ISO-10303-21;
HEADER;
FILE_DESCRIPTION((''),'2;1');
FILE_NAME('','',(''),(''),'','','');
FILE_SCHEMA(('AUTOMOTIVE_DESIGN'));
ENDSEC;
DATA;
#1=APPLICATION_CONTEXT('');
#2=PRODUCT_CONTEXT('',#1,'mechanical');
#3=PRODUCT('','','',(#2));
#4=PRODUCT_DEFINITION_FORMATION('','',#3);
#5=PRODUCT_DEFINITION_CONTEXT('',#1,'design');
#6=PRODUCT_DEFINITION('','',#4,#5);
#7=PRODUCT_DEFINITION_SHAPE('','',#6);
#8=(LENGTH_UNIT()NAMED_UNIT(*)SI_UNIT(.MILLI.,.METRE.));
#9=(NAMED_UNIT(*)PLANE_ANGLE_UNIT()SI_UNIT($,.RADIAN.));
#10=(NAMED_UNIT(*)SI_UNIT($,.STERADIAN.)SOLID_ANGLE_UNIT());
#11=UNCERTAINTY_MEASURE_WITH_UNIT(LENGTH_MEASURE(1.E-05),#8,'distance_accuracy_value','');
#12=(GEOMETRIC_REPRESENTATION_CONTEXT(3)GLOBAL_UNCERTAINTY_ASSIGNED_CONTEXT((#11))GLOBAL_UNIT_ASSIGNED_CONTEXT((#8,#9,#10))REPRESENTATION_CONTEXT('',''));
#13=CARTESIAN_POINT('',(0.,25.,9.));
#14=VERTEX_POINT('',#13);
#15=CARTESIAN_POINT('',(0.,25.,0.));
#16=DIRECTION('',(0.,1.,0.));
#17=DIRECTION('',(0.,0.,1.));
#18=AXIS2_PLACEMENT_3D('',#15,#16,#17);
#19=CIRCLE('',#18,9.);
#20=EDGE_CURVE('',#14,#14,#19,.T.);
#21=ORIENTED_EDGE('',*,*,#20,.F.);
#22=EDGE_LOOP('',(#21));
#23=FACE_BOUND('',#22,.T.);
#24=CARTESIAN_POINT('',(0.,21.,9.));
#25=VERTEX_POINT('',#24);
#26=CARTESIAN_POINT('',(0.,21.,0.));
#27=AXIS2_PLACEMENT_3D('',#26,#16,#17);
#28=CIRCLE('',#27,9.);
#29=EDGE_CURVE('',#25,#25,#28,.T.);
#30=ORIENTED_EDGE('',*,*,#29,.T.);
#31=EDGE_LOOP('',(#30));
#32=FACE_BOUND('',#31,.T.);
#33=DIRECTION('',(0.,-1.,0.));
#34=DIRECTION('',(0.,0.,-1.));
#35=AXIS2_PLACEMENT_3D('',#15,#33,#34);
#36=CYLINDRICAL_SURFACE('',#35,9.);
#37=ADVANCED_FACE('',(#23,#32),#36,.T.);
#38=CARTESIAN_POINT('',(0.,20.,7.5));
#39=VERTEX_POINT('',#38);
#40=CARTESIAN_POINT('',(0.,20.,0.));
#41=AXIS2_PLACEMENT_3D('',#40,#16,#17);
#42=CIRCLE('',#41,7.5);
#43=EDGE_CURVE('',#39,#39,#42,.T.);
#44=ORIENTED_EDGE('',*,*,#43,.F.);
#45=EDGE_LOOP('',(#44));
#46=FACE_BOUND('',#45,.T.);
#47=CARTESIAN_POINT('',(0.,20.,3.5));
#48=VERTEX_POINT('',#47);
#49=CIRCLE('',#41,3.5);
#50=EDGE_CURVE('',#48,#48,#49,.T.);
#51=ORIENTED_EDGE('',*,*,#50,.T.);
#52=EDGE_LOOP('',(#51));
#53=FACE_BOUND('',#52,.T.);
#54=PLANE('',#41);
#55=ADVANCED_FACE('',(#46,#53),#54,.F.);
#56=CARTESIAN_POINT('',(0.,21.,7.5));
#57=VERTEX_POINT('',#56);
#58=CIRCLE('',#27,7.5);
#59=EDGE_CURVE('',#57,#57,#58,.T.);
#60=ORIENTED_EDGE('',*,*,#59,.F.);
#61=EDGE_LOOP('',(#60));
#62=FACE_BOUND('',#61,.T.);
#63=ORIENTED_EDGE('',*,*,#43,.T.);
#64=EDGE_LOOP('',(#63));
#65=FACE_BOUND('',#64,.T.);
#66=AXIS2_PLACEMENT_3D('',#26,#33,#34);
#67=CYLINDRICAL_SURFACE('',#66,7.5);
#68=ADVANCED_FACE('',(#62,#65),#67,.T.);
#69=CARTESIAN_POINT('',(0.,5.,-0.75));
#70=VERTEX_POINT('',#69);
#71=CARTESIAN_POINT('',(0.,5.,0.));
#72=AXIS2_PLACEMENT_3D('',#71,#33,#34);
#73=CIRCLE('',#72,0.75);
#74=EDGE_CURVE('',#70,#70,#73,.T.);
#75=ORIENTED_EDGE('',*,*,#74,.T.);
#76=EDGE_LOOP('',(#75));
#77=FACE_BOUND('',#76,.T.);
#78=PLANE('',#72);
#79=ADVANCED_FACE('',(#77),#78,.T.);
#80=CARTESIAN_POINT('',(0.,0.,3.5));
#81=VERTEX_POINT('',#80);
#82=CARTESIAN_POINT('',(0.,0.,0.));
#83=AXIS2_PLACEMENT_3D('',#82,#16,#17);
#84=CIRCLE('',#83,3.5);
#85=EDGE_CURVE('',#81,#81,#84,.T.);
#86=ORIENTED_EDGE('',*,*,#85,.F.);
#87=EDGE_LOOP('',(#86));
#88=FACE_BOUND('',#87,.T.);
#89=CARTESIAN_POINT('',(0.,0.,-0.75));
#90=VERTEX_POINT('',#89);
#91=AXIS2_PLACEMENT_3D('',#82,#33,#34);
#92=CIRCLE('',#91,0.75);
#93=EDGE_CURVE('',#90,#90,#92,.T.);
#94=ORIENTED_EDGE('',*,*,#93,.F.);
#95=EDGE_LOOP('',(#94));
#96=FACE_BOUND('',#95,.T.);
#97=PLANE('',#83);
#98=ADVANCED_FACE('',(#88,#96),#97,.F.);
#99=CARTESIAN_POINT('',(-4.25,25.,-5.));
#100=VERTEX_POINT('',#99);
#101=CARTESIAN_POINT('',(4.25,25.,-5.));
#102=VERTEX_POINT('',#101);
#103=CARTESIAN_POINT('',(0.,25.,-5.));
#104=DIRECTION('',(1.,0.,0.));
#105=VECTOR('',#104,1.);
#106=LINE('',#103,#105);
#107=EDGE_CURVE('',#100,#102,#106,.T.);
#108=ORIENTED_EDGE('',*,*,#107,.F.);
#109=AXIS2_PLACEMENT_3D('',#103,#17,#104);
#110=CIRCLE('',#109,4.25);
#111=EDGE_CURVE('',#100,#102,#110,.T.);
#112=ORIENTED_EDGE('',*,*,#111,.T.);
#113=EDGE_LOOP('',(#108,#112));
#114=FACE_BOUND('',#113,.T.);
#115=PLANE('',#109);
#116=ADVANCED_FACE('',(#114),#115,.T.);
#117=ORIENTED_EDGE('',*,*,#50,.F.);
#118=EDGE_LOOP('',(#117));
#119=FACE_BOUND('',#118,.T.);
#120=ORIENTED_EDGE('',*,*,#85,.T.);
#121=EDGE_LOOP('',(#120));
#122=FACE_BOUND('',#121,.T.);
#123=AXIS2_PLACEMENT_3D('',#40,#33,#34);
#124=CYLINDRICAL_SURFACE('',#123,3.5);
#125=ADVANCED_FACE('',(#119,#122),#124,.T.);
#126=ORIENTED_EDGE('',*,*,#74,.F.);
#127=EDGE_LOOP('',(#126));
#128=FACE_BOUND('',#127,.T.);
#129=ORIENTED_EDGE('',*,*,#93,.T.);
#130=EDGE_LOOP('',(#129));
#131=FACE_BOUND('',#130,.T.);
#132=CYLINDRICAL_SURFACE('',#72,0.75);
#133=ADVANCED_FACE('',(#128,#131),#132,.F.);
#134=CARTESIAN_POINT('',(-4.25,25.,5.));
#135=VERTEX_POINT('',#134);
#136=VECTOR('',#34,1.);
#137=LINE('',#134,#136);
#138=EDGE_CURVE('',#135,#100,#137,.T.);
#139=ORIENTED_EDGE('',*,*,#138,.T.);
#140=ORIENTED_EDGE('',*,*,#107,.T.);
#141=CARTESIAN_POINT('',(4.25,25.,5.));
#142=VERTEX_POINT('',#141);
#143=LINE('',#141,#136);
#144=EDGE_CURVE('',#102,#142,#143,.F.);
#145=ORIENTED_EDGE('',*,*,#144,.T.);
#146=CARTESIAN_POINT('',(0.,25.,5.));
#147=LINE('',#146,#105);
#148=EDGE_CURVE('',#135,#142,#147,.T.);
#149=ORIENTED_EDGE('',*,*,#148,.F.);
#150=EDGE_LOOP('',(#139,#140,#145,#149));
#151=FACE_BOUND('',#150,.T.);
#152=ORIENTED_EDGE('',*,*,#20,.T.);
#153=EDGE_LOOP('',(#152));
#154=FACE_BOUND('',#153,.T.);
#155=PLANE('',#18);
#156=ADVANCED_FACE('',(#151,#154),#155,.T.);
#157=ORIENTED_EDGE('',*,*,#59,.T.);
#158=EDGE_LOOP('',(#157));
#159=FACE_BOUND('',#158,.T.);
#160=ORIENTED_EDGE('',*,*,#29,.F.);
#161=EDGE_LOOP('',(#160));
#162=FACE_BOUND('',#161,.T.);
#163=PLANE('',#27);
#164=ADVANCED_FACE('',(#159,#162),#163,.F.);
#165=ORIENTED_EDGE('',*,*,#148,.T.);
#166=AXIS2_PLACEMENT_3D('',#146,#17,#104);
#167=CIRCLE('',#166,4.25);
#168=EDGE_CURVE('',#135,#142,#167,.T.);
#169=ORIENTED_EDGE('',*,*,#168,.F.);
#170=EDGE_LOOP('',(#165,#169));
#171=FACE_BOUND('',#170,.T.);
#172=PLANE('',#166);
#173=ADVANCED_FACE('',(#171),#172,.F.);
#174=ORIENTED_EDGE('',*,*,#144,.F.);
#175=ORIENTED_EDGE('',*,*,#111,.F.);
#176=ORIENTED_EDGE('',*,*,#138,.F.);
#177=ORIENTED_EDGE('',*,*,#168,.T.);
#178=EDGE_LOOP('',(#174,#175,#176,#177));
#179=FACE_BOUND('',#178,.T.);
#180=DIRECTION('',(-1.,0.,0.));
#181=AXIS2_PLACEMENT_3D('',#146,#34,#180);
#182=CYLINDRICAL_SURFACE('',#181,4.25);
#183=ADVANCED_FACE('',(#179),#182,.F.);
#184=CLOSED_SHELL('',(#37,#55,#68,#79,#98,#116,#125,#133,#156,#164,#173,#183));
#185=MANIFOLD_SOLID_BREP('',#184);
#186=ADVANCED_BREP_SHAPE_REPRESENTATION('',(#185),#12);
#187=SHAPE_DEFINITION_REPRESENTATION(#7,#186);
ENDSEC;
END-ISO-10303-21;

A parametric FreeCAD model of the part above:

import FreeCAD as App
import Part
import Sketcher

V = App.Vector

doc = App.newDocument("Part")
body = doc.addObject("PartDesign::Body", "Body")

sketch1 = body.newObject("Sketcher::SketchObject", "Sketch")
sketch1.AttachmentSupport = (doc.getObject("XZ_Plane"), [""])
sketch1.MapMode = "FlatFace"
sketch1.addGeometry(Part.Circle(V(0, 0, 0), V(0, 0, 1), 3.5), False)
sketch1.addConstraint(Sketcher.Constraint("Coincident", 0, 3, -1, 1))
sketch1.addConstraint(Sketcher.Constraint("Diameter", 0, 7.0))
pad1 = body.newObject("PartDesign::Pad", "Pad")
pad1.Profile = sketch1
pad1.Length = 20
pad1.Reversed = True

sketch2 = body.newObject("Sketcher::SketchObject", "Sketch001")
sketch2.AttachmentSupport = (doc.getObject("XZ_Plane"), [""])
sketch2.MapMode = "FlatFace"
sketch2.AttachmentOffset = App.Placement(V(0, 0, -20), App.Rotation())
sketch2.addGeometry(Part.Circle(V(0, 0, 0), V(0, 0, 1), 7.5), False)
sketch2.addConstraint(Sketcher.Constraint("Coincident", 0, 3, -1, 1))
sketch2.addConstraint(Sketcher.Constraint("Diameter", 0, 15.0))
pad2 = body.newObject("PartDesign::Pad", "Pad001")
pad2.Profile = sketch2
pad2.Length = 1
pad2.Reversed = True

sketch3 = body.newObject("Sketcher::SketchObject", "Sketch002")
sketch3.AttachmentSupport = (doc.getObject("XZ_Plane"), [""])
sketch3.MapMode = "FlatFace"
sketch3.AttachmentOffset = App.Placement(V(0, 0, -21), App.Rotation())
sketch3.addGeometry(Part.Circle(V(0, 0, 0), V(0, 0, 1), 9), False)
sketch3.addConstraint(Sketcher.Constraint("Coincident", 0, 3, -1, 1))
sketch3.addConstraint(Sketcher.Constraint("Diameter", 0, 18.0))
pad3 = body.newObject("PartDesign::Pad", "Pad002")
pad3.Profile = sketch3
pad3.Length = 4
pad3.Reversed = True

sketch4 = body.newObject("Sketcher::SketchObject", "Sketch003")
sketch4.AttachmentSupport = (doc.getObject("XY_Plane"), [""])
sketch4.MapMode = "FlatFace"
sketch4.addGeometry(Part.Circle(V(0, 25, 0), V(0, 0, 1), 4.25), False)
sketch4.addConstraint(Sketcher.Constraint("PointOnObject", 0, 3, -2))
sketch4.addConstraint(Sketcher.Constraint("Diameter", 0, 8.5))
sketch4.addConstraint(Sketcher.Constraint("DistanceY", -1, 1, 0, 3, 25.0))
pocket1 = body.newObject("PartDesign::Pocket", "Pocket")
pocket1.Profile = sketch4
pocket1.Type = "TwoLengths"
pocket1.Length = 5
pocket1.Length2 = 5
pocket1.Reversed = True

sketch5 = body.newObject("Sketcher::SketchObject", "Sketch004")
sketch5.AttachmentSupport = (doc.getObject("XZ_Plane"), [""])
sketch5.MapMode = "FlatFace"
sketch5.addGeometry(Part.Circle(V(0, 0, 0), V(0, 0, 1), 0.75), False)
sketch5.addConstraint(Sketcher.Constraint("Coincident", 0, 3, -1, 1))
sketch5.addConstraint(Sketcher.Constraint("Diameter", 0, 1.5))
pocket2 = body.newObject("PartDesign::Pocket", "Pocket001")
pocket2.Profile = sketch5
pocket2.Length = 5

doc.recompute()
